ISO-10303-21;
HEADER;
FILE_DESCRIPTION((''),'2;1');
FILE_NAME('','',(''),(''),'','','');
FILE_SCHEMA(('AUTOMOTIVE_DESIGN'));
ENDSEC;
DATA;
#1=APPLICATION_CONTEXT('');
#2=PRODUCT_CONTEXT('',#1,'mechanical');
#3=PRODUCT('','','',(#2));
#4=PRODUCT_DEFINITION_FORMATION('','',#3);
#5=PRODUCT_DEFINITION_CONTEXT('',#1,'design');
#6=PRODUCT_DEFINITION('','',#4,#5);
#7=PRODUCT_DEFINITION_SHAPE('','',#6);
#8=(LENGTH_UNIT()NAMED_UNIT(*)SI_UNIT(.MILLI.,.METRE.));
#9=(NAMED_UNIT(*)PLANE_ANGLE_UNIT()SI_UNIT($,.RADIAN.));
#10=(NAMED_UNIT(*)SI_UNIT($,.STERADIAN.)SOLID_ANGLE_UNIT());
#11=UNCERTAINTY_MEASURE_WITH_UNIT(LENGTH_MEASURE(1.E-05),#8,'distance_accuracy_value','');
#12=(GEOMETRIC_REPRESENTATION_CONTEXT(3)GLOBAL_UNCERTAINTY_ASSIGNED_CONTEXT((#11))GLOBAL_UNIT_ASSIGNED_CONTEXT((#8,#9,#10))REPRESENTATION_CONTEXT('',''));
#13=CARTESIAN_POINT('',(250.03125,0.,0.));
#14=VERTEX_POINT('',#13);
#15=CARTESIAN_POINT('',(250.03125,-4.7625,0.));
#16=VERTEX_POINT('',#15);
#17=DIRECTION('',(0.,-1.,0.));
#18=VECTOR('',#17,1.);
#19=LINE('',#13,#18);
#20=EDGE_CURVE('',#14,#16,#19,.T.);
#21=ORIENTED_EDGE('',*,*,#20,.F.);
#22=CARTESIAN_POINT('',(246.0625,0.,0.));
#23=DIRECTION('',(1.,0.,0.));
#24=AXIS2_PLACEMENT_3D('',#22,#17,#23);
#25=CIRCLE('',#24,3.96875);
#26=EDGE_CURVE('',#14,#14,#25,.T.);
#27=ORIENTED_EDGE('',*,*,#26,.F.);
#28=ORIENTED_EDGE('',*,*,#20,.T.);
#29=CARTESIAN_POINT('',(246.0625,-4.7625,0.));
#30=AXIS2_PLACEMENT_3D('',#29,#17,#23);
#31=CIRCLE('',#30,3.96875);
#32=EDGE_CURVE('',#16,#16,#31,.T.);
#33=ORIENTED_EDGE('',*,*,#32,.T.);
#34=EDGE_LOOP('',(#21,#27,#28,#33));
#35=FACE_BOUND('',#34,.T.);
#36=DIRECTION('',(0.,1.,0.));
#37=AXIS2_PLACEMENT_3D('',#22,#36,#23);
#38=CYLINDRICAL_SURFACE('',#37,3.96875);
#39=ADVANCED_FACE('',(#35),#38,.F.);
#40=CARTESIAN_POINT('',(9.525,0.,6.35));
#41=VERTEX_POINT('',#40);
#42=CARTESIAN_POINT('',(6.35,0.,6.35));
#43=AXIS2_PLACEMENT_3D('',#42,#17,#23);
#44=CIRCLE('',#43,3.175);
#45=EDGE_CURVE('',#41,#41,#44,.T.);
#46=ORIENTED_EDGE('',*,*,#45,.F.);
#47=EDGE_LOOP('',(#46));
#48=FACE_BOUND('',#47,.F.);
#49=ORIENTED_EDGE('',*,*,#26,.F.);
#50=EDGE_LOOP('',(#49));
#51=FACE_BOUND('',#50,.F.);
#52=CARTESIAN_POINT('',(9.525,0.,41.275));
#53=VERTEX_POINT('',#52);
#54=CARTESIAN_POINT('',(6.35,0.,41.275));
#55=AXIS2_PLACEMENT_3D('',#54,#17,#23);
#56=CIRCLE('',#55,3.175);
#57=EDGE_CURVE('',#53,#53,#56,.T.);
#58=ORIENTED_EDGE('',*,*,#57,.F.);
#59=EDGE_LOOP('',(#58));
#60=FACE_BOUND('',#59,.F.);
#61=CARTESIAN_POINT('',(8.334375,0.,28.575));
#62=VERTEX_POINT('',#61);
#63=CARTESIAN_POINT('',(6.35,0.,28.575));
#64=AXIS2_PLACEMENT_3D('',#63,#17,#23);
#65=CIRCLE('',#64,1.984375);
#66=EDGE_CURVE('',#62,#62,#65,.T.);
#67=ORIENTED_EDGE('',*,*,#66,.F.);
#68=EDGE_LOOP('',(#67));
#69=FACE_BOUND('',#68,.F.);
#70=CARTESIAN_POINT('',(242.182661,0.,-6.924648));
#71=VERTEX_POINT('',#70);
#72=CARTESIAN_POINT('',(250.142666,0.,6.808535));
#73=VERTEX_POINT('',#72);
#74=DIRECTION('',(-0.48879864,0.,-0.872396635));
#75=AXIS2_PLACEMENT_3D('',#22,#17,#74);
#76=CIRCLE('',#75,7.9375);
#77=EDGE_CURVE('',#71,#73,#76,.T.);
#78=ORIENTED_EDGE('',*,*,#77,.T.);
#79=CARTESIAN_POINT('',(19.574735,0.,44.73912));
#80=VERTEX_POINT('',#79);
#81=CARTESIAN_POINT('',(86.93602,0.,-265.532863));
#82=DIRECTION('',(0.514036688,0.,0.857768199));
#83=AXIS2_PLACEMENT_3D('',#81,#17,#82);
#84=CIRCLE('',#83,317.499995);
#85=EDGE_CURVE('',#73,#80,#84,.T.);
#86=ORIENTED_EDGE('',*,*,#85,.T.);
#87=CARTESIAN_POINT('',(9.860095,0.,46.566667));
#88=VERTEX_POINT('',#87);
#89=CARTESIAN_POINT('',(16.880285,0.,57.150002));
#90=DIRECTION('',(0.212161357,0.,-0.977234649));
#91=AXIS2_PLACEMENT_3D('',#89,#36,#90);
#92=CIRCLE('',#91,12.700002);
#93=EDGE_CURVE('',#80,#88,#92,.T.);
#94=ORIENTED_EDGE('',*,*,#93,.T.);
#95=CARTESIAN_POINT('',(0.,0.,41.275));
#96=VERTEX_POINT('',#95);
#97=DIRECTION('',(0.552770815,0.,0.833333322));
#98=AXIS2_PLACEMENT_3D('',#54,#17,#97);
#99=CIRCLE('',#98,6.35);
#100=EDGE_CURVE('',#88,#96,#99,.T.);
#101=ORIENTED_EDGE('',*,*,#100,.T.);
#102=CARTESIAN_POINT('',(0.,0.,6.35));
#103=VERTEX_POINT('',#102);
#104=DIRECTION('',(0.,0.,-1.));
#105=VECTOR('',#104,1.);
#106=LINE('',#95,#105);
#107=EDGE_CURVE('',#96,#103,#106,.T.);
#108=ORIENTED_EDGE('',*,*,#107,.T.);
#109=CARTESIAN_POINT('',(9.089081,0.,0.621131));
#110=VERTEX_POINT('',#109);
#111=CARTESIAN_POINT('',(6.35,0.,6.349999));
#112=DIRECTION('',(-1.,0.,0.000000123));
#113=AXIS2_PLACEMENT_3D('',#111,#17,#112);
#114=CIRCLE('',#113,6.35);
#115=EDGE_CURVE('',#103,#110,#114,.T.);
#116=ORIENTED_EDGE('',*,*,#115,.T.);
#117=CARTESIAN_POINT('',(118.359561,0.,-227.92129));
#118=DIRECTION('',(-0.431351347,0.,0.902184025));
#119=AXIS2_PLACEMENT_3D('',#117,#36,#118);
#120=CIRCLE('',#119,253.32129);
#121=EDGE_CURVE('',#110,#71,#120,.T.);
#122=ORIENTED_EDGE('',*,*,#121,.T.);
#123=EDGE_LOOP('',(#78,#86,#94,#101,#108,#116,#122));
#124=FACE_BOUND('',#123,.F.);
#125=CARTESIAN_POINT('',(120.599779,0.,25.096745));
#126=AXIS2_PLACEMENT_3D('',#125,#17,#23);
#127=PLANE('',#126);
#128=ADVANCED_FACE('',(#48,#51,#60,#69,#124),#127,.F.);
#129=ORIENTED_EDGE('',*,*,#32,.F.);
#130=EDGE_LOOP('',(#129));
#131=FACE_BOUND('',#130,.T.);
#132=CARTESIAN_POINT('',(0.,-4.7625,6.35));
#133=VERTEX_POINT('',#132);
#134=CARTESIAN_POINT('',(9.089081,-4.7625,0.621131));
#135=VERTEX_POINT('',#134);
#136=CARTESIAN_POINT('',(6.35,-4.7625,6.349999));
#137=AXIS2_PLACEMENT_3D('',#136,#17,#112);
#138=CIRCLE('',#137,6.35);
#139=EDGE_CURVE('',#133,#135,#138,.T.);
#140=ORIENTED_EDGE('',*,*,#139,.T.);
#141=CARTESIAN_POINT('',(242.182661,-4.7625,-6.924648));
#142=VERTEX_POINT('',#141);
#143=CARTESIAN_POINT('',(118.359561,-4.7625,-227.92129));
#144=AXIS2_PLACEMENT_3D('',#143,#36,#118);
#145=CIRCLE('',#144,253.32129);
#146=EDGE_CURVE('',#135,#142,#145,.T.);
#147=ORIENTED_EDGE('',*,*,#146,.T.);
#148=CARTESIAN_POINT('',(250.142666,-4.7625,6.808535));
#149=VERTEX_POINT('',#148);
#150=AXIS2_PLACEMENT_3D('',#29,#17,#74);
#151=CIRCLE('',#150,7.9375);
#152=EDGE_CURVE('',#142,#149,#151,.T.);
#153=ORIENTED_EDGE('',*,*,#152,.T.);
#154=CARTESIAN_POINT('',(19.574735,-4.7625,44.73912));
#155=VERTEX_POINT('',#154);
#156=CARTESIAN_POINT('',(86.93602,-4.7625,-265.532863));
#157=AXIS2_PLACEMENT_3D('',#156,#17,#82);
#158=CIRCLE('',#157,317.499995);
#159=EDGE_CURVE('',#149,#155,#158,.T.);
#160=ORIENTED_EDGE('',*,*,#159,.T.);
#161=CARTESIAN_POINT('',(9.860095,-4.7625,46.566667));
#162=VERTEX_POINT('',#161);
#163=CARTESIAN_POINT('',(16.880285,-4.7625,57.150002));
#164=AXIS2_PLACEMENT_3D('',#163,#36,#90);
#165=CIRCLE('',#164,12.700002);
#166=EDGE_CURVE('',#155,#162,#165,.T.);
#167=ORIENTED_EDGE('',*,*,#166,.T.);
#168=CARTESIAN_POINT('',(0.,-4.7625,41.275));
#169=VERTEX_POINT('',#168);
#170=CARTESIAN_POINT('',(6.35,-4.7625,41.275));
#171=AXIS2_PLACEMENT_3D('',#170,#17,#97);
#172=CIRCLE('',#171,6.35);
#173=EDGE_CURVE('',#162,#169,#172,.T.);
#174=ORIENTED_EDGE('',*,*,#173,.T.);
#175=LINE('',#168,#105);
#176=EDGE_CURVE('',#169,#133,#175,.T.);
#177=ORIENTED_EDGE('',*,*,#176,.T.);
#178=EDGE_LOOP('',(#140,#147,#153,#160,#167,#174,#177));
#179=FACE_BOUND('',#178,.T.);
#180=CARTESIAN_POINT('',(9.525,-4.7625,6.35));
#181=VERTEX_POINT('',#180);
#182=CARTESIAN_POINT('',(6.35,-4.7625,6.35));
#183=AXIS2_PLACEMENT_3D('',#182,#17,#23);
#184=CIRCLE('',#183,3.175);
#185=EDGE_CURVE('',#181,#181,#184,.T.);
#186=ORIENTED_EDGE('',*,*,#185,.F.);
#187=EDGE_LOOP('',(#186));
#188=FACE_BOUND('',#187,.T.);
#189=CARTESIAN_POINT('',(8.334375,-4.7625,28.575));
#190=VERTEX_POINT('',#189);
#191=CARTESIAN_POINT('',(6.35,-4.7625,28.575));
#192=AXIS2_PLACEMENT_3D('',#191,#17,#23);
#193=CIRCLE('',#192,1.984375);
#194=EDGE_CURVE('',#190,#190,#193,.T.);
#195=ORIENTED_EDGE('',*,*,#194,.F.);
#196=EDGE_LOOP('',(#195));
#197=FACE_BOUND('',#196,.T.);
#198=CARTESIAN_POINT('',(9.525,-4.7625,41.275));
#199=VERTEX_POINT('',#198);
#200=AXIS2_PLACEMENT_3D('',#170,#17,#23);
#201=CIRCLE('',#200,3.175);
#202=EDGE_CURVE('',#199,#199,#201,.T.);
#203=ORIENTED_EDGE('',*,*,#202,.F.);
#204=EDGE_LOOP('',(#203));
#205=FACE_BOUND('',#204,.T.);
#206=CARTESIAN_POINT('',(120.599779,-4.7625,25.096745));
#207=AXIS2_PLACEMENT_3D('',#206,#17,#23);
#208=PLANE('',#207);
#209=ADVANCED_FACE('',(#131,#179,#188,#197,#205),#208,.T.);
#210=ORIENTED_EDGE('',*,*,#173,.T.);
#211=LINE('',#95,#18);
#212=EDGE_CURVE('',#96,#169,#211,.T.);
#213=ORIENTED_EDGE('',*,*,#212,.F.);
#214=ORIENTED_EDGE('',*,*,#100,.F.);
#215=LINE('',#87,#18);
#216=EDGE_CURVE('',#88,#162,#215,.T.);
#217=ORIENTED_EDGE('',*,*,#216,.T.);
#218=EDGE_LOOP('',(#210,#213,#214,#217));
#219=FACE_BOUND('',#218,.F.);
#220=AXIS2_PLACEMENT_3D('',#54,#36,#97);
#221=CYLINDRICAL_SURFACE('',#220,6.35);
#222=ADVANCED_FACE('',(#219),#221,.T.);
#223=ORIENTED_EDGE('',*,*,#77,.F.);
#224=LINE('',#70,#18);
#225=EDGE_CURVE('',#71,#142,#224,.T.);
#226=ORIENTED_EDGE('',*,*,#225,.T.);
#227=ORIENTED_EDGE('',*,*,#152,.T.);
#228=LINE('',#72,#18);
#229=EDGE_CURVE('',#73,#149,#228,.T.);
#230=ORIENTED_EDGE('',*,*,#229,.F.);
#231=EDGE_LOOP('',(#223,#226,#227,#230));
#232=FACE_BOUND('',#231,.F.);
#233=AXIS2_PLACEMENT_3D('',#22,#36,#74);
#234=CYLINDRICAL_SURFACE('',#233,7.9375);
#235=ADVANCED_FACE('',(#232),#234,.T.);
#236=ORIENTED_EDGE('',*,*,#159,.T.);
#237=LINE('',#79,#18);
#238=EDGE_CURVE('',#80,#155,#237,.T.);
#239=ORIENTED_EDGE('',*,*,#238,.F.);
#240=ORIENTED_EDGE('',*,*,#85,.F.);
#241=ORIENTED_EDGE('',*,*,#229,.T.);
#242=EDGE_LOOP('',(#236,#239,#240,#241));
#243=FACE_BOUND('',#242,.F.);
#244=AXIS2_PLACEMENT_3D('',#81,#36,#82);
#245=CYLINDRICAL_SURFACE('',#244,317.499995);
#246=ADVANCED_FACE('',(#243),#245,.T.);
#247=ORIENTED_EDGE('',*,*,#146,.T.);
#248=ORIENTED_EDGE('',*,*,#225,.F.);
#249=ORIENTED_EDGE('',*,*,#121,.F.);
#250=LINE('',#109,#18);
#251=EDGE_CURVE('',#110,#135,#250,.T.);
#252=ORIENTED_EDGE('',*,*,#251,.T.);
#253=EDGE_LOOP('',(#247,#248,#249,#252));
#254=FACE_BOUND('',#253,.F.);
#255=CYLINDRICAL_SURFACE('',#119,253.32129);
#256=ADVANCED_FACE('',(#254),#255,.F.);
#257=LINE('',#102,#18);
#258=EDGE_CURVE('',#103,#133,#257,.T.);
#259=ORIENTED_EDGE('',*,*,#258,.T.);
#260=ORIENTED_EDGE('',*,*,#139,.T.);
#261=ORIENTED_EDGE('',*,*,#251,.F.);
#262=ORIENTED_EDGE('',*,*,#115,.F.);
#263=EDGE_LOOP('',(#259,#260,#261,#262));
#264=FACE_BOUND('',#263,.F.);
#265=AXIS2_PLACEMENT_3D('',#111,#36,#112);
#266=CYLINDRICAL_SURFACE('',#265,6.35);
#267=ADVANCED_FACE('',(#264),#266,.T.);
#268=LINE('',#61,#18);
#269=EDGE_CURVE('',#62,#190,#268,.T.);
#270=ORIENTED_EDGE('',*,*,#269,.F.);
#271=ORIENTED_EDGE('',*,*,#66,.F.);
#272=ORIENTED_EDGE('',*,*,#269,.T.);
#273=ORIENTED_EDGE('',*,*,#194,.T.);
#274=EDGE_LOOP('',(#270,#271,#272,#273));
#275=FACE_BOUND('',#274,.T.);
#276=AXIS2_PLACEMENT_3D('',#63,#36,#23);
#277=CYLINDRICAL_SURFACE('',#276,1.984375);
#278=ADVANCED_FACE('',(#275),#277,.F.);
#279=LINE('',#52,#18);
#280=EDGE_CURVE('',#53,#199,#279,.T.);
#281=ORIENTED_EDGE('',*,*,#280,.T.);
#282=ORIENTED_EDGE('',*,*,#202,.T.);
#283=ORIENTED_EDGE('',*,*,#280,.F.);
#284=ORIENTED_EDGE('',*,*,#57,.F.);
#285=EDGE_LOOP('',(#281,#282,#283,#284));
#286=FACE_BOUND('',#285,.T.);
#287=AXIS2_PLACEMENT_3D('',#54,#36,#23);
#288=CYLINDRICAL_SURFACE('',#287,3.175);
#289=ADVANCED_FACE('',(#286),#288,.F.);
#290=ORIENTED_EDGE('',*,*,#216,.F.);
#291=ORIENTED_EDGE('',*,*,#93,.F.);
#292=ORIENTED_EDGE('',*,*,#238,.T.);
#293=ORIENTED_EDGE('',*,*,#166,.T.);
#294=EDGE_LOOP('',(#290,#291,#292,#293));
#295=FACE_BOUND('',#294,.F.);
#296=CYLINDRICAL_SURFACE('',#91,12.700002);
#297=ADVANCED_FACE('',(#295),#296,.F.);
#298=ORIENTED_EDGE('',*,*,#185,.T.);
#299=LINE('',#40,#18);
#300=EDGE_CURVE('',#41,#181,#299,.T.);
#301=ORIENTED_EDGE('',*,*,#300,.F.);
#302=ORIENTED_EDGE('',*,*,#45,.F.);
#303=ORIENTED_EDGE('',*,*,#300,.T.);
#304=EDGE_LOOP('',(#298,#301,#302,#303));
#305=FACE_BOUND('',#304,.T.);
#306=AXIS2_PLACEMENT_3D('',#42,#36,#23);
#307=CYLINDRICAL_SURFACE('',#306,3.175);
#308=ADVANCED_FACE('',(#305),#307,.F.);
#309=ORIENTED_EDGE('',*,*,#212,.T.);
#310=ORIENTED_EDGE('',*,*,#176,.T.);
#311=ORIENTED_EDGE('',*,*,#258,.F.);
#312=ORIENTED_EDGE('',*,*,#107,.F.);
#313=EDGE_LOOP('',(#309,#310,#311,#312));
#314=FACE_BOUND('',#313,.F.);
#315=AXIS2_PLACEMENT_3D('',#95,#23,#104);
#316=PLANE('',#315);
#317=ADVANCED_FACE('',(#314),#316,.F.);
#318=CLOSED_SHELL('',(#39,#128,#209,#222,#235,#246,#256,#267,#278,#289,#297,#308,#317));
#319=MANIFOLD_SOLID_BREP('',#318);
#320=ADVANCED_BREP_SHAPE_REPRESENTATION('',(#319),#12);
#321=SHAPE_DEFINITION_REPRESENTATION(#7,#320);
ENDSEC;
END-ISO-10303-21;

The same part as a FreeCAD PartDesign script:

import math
import FreeCAD as App
import Part
import Sketcher
Q = App.Units.Quantity

doc = App.newDocument("Part")
body = doc.addObject("PartDesign::Body", "Body")

# Sketch on XZ plane
sketch1 = body.newObject("Sketcher::SketchObject", "Sketch")
sketch1.AttachmentSupport = (doc.getObject("XZ_Plane"), [""])
sketch1.MapMode = "FlatFace"
sketch1.addGeometry(Part.ArcOfCircle(Part.Circle(App.Vector(6.4, 41.3, 0), App.Vector(0, 0, 1), 6.4), math.radians(56), math.radians(180)), False)
sketch1.addGeometry(Part.LineSegment(App.Vector(0, 41.3, 0), App.Vector(0, 6.3, 0)), False)
sketch1.addGeometry(Part.ArcOfCircle(Part.Circle(App.Vector(6.3, 6.3, 0), App.Vector(0, 0, 1), 6.3), math.radians(180), math.radians(296)), False)
sketch1.addGeometry(Part.ArcOfCircle(Part.Circle(App.Vector(118.4, -227.9, 0), App.Vector(0, 0, 1), 253.3), math.radians(61), math.radians(116)), False)
sketch1.addGeometry(Part.ArcOfCircle(Part.Circle(App.Vector(246.1, 0, 0), App.Vector(0, 0, 1), 7.9), math.radians(-119), math.radians(59)), False)
sketch1.addGeometry(Part.ArcOfCircle(Part.Circle(App.Vector(86.9, -265.5, 0), App.Vector(0, 0, 1), 317.5), math.radians(59), math.radians(102)), False)
sketch1.addGeometry(Part.ArcOfCircle(Part.Circle(App.Vector(16.9, 57.2, 0), App.Vector(0, 0, 1), 12.7), math.radians(-124), math.radians(-78)), False)
sketch1.addGeometry(Part.Circle(App.Vector(6.3, 6.3, 0), App.Vector(0, 0, 1), 3.2), False)
sketch1.addGeometry(Part.Circle(App.Vector(246.1, 0, 0), App.Vector(0, 0, 1), 4), False)
sketch1.addGeometry(Part.Circle(App.Vector(6.3, 28.6, 0), App.Vector(0, 0, 1), 2), False)
sketch1.addGeometry(Part.Circle(App.Vector(6.3, 41.3, 0), App.Vector(0, 0, 1), 3.2), False)
sketch1.addConstraint(Sketcher.Constraint("Tangent", 0, 2, 1, 1))
sketch1.addConstraint(Sketcher.Constraint("Tangent", 1, 2, 2, 1))
sketch1.addConstraint(Sketcher.Constraint("Tangent", 2, 2, 3, 2))
sketch1.addConstraint(Sketcher.Constraint("Tangent", 3, 1, 4, 1))
sketch1.addConstraint(Sketcher.Constraint("Tangent", 4, 2, 5, 1))
sketch1.addConstraint(Sketcher.Constraint("Tangent", 5, 2, 6, 2))
sketch1.addConstraint(Sketcher.Constraint("Tangent", 6, 1, 0, 1))
sketch1.addConstraint(Sketcher.Constraint("Vertical", 1))
sketch1.addConstraint(Sketcher.Constraint("Coincident", 7, 3, 2, 3))
sketch1.addConstraint(Sketcher.Constraint("Coincident", 8, 3, 4, 3))
sketch1.addConstraint(Sketcher.Constraint("Coincident", 10, 3, 0, 3))
sketch1.addConstraint(Sketcher.Constraint("Equal", 0, 2))
sketch1.addConstraint(Sketcher.Constraint("Equal", 7, 10))
sketch1.addConstraint(Sketcher.Constraint("PointOnObject", 4, 3, -1))
sketch1.addConstraint(Sketcher.Constraint("PointOnObject", 0, 2, -2))
sketch1.addConstraint(Sketcher.Constraint("Vertical", 7, 3, 9, 3))
sketch1.addConstraint(Sketcher.Constraint("Radius", 6, Q("0.5000001 in")))
sketch1.addConstraint(Sketcher.Constraint("Diameter", 7, Q("0.25 in")))
sketch1.addConstraint(Sketcher.Constraint("Radius", 0, Q("0.25 in")))
sketch1.addConstraint(Sketcher.Constraint("Diameter", 8, Q("0.3125 in")))
sketch1.addConstraint(Sketcher.Constraint("Diameter", 9, Q("0.15625 in")))
sketch1.addConstraint(Sketcher.Constraint("Radius", 4, Q("0.3125 in")))
sketch1.addConstraint(Sketcher.Constraint("DistanceY", 2, 3, 6, 3, Q("2.0000001 in")))
sketch1.addConstraint(Sketcher.Constraint("DistanceY", 9, 3, 0, 3, Q("0.5 in")))
sketch1.addConstraint(Sketcher.Constraint("DistanceY", 1, 2, 1, 1, Q("1.375 in")))
sketch1.addConstraint(Sketcher.Constraint("DistanceY", -1, 1, 2, 3, Q("0.25 in")))
sketch1.addConstraint(Sketcher.Constraint("DistanceX", -1, 1, 4, 3, Q("9.6875 in")))
sketch1.addConstraint(Sketcher.Constraint("Radius", 3, Q("253.32129 mm")))
sketch1.addConstraint(Sketcher.Constraint("Radius", 5, Q("317.499995 mm")))
pad1 = body.newObject("PartDesign::Pad", "Pad")
pad1.Profile = sketch1
pad1.Length = Q("0.1875 in")

doc.recompute()
